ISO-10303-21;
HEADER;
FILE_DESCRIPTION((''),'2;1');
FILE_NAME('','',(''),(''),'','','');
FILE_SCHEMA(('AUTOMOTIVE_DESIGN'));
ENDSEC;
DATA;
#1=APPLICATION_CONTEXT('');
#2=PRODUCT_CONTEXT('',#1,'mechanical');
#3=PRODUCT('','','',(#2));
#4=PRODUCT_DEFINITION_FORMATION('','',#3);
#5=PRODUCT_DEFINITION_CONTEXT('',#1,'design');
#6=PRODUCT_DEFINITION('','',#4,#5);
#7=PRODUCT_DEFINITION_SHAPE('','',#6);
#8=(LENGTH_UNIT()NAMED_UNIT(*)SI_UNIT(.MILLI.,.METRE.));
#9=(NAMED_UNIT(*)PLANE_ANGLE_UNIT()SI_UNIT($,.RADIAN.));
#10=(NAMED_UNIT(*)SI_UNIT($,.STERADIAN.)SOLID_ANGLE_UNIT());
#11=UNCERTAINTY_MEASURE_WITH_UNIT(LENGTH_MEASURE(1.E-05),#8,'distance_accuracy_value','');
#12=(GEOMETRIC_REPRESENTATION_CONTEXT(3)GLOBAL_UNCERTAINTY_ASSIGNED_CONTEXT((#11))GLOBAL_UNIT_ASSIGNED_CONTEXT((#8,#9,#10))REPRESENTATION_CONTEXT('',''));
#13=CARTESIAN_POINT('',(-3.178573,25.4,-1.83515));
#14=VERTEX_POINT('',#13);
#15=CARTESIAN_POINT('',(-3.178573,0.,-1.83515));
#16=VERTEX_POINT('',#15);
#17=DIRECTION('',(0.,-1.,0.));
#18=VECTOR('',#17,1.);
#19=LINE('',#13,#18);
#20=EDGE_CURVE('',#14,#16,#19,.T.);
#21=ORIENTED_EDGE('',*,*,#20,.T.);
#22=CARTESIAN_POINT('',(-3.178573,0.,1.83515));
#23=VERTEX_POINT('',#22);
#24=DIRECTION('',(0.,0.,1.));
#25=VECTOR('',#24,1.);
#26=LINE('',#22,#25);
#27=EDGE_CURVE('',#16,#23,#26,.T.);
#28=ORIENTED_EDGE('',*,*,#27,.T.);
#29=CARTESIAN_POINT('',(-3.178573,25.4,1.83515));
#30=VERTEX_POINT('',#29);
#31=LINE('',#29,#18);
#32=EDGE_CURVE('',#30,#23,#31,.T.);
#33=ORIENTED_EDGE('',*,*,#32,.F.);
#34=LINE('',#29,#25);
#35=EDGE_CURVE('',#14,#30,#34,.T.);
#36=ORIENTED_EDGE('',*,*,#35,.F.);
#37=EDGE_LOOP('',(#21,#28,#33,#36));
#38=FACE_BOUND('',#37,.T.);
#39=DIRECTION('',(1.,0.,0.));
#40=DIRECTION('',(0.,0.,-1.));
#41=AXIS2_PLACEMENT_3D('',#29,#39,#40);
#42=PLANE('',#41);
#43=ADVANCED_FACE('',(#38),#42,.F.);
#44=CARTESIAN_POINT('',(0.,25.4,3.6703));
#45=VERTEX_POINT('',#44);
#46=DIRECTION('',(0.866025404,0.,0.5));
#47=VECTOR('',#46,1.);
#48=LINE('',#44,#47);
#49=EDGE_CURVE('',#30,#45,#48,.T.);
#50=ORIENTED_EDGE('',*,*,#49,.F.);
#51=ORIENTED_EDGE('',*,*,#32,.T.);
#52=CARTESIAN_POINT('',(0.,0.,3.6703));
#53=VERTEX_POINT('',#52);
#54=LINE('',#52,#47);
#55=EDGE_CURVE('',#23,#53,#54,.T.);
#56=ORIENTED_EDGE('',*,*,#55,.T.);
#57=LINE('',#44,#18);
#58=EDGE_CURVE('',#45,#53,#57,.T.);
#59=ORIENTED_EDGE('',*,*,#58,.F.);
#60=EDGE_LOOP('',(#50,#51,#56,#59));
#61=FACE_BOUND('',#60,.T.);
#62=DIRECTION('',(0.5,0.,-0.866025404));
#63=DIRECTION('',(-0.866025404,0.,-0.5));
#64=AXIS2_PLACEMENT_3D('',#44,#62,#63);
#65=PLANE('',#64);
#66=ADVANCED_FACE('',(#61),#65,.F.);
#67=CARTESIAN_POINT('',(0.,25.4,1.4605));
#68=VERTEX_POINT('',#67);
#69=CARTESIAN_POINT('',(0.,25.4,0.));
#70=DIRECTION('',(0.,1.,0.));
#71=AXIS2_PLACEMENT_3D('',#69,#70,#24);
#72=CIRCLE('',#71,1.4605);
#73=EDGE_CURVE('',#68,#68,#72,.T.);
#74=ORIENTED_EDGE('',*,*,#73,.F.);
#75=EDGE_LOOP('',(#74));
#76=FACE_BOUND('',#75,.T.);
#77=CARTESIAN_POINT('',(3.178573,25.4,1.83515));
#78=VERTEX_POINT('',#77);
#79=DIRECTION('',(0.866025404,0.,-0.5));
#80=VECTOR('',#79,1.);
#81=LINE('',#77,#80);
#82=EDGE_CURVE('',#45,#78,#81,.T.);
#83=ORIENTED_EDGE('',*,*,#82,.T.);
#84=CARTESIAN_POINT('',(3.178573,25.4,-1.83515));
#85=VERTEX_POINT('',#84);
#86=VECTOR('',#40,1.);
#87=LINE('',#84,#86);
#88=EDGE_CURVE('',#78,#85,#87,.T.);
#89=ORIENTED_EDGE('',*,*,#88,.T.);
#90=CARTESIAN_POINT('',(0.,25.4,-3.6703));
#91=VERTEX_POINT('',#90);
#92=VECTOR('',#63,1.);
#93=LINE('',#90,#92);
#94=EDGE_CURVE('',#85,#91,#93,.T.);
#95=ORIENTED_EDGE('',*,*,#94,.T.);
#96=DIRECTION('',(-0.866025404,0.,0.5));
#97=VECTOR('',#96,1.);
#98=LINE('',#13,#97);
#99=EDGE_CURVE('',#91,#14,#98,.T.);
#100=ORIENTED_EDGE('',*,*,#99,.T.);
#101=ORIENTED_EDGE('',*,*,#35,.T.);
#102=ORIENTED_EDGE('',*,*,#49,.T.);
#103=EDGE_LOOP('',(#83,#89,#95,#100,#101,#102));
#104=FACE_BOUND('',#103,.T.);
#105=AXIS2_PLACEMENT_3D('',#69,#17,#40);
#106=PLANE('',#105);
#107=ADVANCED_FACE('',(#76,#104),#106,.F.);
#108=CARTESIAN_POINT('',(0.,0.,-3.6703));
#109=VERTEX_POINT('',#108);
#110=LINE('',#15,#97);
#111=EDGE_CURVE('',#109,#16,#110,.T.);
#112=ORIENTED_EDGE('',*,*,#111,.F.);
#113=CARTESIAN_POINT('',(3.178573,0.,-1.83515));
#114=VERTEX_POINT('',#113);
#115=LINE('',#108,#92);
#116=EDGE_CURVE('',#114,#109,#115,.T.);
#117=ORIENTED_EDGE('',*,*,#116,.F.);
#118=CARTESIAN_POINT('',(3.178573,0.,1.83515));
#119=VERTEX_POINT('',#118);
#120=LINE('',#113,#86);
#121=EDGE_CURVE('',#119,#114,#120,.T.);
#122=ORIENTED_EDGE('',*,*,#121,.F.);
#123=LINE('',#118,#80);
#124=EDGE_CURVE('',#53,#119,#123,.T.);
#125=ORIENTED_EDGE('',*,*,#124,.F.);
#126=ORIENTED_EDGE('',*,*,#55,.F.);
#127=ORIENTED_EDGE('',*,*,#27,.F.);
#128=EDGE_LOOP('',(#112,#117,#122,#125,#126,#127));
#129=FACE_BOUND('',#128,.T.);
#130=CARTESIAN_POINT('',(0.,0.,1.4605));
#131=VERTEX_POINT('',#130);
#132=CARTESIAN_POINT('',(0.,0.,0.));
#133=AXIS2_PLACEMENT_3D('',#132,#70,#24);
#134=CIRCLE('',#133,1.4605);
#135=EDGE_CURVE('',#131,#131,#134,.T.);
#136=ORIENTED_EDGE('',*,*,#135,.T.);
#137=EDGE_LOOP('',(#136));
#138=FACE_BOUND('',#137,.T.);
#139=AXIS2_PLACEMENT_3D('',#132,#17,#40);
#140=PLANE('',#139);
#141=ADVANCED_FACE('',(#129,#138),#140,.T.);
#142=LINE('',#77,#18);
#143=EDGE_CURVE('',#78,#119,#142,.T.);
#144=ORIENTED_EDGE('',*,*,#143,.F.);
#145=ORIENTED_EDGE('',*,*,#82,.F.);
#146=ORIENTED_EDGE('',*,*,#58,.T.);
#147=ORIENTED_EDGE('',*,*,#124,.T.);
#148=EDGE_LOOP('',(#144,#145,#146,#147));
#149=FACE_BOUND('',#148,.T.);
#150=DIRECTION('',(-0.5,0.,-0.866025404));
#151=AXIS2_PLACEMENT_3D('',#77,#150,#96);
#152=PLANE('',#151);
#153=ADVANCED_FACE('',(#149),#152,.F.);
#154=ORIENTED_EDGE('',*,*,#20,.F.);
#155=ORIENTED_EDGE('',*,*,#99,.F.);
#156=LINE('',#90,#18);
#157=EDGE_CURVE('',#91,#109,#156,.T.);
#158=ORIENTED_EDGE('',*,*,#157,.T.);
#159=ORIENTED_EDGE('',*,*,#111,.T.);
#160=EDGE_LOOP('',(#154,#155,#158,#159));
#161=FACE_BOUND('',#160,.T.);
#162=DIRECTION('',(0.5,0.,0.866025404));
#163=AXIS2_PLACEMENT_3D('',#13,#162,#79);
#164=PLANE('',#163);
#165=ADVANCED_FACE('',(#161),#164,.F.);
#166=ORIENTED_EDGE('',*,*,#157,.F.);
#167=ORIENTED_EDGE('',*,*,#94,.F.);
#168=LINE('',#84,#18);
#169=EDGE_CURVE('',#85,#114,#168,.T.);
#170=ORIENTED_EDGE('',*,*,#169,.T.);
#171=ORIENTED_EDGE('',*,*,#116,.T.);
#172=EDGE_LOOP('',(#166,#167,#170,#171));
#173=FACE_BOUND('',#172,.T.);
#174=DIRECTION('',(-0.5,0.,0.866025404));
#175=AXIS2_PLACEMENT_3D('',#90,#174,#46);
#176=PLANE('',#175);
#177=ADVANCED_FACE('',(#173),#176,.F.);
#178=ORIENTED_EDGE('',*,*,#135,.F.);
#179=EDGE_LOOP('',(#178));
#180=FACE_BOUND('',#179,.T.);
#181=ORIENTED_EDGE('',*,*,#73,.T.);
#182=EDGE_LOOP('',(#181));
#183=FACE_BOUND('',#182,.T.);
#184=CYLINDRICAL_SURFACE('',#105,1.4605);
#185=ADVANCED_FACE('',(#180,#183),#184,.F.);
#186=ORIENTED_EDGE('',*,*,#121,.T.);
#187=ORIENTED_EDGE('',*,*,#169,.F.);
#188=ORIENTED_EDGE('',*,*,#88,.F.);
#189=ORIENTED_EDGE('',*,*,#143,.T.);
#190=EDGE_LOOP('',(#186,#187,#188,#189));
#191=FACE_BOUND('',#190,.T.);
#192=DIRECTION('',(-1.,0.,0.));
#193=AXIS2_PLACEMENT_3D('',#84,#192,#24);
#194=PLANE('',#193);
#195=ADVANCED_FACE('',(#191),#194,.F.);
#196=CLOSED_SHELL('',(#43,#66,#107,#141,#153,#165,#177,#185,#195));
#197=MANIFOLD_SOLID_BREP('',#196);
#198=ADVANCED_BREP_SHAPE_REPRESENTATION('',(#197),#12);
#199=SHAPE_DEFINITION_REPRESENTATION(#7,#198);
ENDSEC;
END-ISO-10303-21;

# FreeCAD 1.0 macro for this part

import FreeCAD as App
import Part
import Sketcher

V = App.Vector
Q = App.Units.Quantity


def add_polygon(sketch, points):
    """Adds a closed chain of lines whose ends are joined by coincident constraints."""
    first, n = sketch.GeometryCount, len(points)
    for a, b in zip(points, points[1:] + points[:1]):
        sketch.addGeometry(Part.LineSegment(App.Vector(*a, 0), App.Vector(*b, 0)), False)
    for i in range(n):
        sketch.addConstraint(Sketcher.Constraint("Coincident", first + i, 2, first + (i + 1) % n, 1))

doc = App.newDocument("Part")
body = doc.addObject("PartDesign::Body", "Body")

sketch1 = body.newObject("Sketcher::SketchObject", "Sketch")
sketch1.AttachmentSupport = (doc.getObject("XZ_Plane"), [""])
sketch1.MapMode = "FlatFace"
add_polygon(sketch1, [(0, -3.7), (-3.2, -1.8), (-3.2, 1.8), (0, 3.7), (3.2, 1.8), (3.2, -1.8)])
sketch1.addGeometry(Part.Circle(V(0, 0, 0), V(0, 0, 1), 1.5), False)
sketch1.addConstraint([
    Sketcher.Constraint("Vertical", 1),
    Sketcher.Constraint("Vertical", 4),
    Sketcher.Constraint("Coincident", 6, 3, -1, 1),
    Sketcher.Constraint("Symmetric", 0, 2, 3, 2, -1, 1),
    Sketcher.Constraint("Symmetric", 2, 2, 5, 2, -1, 1),
    Sketcher.Constraint("PointOnObject", 2, 2, -2),
    Sketcher.Constraint("Parallel", 2, 5),
    Sketcher.Constraint("Horizontal", 1, 2, 3, 2),
    Sketcher.Constraint("Diameter", 6, Q("0.115 in")),
    Sketcher.Constraint("Angle", 0, Q("150 deg")),
    Sketcher.Constraint("DistanceY", 1, 1, 1, 2, Q("0.1445 in")),
    Sketcher.Constraint("Distance", 0, Q("0.1445 in")),
])
pad1 = body.newObject("PartDesign::Pad", "Pad")
pad1.Profile = sketch1
pad1.Length = Q("1 in")
pad1.Reversed = True

doc.recompute()
